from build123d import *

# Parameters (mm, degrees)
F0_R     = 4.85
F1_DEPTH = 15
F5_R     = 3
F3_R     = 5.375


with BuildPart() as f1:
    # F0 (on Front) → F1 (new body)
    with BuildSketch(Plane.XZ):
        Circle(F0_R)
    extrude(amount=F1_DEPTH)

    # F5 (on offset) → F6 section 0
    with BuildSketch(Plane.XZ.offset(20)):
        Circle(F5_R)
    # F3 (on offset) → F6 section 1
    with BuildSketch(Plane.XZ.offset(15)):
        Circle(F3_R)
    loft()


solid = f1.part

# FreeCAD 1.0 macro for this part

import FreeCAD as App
import Part
import Sketcher

V = App.Vector

doc = App.newDocument("Part")
body = doc.addObject("PartDesign::Body", "Body")

sketch1 = body.newObject("Sketcher::SketchObject", "Sketch")
sketch1.AttachmentSupport = (doc.getObject("XZ_Plane"), [""])
sketch1.MapMode = "FlatFace"
sketch1.addGeometry(Part.Circle(V(0, 0, 0), V(0, 0, 1), 4.8), False)
sketch1.addConstraint([
    Sketcher.Constraint("Coincident", 0, 3, -1, 1),
    Sketcher.Constraint("Diameter", 0, 9.7),
])
pad1 = body.newObject("PartDesign::Pad", "Pad")
pad1.Profile = sketch1
pad1.Length = 15

sketch2 = body.newObject("Sketcher::SketchObject", "Sketch001")
sketch2.AttachmentSupport = (doc.getObject("XZ_Plane"), [""])
sketch2.MapMode = "FlatFace"
sketch2.AttachmentOffset = App.Placement(V(0, 0, 20), App.Rotation())
sketch2.addGeometry(Part.Circle(V(0, 0, 0), V(0, 0, 1), 3), False)
sketch2.addConstraint([
    Sketcher.Constraint("Coincident", 0, 3, -1, 1),
    Sketcher.Constraint("Diameter", 0, 6.0),
])

sketch3 = body.newObject("Sketcher::SketchObject", "Sketch002")
sketch3.AttachmentSupport = (doc.getObject("XZ_Plane"), [""])
sketch3.MapMode = "FlatFace"
sketch3.AttachmentOffset = App.Placement(V(0, 0, 15), App.Rotation())
sketch3.addGeometry(Part.Circle(V(0, 0, 0), V(0, 0, 1), 5), False)
sketch3.addConstraint([
    Sketcher.Constraint("Coincident", 0, 3, -1, 1),
    Sketcher.Constraint("Diameter", 0, 10.75),
])

additiveloft = body.newObject("PartDesign::AdditiveLoft", "AdditiveLoft")
additiveloft.Profile = sketch2
additiveloft.Sections = [sketch3]

doc.recompute()
